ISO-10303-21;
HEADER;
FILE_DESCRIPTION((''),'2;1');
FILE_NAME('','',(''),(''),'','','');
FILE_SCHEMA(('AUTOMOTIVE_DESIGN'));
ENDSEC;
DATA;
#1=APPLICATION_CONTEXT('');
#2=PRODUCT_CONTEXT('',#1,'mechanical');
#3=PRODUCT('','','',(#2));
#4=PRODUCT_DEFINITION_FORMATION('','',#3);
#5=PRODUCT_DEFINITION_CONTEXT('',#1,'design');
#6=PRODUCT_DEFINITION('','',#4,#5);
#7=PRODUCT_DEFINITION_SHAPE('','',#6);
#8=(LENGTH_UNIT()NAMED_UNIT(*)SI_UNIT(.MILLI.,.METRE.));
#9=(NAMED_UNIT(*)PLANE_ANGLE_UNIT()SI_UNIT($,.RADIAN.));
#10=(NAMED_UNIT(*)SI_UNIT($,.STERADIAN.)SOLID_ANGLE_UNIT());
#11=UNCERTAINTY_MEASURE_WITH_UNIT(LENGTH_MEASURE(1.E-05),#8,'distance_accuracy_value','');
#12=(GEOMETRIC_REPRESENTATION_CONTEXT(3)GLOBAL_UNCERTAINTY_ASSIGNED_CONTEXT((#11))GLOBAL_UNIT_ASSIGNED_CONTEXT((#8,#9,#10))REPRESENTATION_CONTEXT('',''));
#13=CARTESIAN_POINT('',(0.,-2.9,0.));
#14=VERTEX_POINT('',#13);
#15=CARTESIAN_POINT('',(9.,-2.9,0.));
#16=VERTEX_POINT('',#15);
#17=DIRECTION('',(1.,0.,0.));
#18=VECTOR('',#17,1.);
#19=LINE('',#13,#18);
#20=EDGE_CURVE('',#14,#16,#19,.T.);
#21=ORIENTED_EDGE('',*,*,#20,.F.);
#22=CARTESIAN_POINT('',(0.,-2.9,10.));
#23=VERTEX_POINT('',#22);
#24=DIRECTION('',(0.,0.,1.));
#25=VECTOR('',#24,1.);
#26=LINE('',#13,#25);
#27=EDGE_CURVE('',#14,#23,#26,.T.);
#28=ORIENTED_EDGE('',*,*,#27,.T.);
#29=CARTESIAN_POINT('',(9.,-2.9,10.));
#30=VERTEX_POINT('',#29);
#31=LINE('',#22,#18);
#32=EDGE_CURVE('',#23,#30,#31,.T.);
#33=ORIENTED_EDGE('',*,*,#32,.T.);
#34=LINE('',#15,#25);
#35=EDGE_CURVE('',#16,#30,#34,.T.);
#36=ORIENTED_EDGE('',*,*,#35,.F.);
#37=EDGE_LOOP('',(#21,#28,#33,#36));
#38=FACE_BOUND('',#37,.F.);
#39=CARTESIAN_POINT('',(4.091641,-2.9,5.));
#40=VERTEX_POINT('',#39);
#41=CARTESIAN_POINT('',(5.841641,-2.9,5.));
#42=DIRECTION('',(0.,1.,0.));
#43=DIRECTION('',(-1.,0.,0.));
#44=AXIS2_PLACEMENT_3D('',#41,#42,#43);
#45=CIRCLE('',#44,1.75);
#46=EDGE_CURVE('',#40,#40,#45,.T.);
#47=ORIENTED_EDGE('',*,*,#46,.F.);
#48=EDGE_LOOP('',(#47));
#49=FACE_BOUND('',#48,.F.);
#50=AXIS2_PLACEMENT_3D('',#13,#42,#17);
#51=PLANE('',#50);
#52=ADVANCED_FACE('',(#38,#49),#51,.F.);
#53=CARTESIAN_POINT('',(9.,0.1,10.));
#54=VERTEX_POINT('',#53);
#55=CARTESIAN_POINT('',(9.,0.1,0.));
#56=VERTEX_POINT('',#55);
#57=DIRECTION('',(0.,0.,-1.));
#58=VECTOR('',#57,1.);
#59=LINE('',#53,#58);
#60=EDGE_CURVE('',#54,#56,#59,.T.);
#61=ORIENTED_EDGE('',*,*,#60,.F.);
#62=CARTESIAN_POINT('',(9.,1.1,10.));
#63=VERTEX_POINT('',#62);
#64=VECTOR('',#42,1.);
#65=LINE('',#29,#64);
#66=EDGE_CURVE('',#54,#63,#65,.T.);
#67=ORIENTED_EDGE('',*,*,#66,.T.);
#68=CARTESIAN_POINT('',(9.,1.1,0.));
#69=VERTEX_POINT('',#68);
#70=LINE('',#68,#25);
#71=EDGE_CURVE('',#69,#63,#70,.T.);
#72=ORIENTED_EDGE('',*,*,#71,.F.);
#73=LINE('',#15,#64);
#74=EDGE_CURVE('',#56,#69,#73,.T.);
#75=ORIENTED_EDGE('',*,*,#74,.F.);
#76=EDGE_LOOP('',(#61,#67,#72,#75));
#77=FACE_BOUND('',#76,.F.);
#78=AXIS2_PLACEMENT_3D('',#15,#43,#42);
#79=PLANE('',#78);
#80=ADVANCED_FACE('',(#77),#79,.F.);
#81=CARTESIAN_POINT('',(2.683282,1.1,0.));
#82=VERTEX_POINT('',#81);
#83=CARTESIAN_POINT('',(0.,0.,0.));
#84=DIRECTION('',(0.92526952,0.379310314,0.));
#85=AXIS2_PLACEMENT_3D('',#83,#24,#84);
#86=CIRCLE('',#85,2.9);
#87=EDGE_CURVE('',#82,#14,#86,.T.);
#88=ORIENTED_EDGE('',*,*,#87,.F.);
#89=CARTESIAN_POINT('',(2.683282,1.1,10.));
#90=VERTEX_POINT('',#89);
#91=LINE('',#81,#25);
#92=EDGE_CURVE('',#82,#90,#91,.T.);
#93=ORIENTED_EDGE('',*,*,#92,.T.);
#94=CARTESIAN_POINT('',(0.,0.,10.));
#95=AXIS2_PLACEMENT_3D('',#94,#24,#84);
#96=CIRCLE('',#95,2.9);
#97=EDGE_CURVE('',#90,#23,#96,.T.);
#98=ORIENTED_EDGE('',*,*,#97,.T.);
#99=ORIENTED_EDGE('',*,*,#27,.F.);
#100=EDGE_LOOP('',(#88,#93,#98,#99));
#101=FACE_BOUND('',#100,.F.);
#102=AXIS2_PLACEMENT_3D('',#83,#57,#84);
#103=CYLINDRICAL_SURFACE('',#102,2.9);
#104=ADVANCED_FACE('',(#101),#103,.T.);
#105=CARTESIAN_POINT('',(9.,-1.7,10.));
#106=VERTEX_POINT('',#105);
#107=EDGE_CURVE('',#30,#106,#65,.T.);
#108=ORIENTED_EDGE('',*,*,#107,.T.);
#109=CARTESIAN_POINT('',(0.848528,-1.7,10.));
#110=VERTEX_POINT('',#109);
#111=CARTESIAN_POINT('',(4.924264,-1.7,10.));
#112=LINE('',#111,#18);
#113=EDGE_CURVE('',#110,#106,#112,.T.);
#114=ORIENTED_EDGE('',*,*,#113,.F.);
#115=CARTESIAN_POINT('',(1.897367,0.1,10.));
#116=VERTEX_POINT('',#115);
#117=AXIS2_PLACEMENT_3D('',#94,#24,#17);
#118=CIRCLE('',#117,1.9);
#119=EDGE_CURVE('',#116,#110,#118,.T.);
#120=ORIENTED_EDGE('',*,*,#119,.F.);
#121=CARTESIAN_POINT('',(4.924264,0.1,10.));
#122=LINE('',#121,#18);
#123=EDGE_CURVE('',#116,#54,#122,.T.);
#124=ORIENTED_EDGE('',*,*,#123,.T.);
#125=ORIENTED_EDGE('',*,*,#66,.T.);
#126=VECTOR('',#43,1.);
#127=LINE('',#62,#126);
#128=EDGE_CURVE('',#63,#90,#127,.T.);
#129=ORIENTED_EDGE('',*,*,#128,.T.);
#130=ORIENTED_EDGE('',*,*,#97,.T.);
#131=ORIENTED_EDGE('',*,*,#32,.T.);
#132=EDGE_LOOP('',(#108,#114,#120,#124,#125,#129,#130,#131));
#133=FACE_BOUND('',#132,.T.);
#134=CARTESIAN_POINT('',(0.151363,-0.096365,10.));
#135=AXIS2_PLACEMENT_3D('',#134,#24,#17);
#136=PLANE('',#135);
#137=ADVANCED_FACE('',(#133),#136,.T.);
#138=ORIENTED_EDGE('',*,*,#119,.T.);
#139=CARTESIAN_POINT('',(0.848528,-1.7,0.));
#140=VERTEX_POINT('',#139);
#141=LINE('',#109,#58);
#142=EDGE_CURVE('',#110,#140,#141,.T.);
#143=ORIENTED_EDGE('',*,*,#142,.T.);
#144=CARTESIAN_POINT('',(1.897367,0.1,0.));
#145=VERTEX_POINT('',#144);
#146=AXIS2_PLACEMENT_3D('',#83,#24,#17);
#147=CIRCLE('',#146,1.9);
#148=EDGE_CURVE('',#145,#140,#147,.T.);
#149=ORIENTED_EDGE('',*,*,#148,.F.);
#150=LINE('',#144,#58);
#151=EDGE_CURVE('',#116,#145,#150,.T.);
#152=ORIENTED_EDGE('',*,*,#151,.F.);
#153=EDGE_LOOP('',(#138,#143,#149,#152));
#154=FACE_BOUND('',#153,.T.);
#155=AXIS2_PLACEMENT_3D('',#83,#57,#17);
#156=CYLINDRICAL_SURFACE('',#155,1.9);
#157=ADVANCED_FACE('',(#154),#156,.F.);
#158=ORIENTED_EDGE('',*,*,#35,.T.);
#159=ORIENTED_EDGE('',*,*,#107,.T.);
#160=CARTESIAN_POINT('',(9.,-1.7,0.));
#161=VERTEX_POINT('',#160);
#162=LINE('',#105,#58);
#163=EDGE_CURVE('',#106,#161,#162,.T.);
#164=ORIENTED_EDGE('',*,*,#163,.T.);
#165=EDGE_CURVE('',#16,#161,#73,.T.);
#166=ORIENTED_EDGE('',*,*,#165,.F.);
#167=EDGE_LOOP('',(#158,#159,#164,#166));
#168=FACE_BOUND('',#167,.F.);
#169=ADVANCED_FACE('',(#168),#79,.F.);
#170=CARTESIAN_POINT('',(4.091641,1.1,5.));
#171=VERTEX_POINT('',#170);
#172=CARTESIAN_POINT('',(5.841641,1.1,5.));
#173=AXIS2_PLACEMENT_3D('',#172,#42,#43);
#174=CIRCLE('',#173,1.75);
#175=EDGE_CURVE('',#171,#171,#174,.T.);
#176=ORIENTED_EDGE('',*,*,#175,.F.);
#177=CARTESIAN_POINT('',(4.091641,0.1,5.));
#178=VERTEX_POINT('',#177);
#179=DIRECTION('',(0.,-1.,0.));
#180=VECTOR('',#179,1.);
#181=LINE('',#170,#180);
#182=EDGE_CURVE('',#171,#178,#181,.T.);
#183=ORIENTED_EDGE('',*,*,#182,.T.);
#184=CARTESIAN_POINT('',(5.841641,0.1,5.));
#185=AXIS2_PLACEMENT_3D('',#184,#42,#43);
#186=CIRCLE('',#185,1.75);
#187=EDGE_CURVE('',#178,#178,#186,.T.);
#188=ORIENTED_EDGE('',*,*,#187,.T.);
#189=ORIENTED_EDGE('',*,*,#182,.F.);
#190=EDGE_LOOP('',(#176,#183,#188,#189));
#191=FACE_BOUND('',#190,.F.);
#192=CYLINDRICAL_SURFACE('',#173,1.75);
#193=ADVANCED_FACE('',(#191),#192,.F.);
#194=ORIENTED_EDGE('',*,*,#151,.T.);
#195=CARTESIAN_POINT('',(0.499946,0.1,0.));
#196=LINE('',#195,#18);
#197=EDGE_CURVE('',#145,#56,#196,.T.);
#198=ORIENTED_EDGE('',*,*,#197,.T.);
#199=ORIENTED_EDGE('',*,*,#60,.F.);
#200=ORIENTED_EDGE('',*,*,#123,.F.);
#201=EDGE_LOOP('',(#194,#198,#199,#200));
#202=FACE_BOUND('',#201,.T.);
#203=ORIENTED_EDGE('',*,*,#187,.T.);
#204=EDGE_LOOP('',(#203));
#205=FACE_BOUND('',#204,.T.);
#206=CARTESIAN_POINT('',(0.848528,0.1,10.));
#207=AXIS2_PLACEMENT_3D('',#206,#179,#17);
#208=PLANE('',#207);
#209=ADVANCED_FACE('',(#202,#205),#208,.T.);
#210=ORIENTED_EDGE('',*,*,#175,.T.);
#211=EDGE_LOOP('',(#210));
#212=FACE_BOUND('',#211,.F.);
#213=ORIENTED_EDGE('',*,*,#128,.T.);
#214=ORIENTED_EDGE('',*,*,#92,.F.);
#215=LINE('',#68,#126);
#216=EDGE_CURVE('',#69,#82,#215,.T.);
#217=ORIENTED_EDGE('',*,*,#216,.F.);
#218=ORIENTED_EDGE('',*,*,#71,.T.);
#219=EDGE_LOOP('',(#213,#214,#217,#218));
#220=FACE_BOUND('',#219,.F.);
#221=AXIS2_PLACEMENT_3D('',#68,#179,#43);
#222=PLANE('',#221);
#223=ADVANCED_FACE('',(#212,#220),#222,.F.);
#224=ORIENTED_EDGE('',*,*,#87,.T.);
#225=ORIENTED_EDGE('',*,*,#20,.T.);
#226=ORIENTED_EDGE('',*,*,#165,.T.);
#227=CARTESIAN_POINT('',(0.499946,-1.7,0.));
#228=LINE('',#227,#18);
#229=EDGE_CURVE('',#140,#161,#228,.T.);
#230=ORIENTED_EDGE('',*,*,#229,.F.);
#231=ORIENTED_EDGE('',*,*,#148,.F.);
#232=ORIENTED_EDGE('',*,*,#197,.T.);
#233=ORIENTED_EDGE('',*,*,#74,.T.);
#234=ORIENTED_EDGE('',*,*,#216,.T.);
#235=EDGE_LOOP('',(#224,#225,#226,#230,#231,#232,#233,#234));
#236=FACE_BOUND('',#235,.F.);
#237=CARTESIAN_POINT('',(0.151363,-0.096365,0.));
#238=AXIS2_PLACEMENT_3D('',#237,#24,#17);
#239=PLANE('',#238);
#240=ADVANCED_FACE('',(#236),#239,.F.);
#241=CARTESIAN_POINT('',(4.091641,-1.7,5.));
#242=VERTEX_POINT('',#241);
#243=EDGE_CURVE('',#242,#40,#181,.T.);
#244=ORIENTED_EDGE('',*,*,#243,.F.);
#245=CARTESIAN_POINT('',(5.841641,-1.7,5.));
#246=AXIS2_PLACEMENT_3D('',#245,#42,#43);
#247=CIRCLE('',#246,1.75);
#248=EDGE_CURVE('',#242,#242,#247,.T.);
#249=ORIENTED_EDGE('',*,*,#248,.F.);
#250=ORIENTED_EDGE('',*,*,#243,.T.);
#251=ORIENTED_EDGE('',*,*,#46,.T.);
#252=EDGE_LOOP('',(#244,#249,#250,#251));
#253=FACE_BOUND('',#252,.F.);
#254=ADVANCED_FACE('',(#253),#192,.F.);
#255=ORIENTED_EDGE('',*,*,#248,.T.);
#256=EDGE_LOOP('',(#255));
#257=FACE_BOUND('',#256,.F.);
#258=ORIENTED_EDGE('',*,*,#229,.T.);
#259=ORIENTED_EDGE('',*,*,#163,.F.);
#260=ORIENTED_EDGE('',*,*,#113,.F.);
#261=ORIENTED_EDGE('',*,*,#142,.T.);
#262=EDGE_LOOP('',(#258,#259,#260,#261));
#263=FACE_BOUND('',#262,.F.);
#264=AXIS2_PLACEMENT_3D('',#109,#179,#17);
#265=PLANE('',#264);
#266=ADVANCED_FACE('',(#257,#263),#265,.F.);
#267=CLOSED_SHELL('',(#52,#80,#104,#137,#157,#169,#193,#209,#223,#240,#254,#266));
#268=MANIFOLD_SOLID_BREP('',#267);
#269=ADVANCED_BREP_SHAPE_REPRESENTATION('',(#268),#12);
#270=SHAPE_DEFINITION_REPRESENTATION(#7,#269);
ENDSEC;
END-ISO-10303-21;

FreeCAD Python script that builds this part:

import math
import FreeCAD as App
import Part
import Sketcher

V = App.Vector
Q = App.Units.Quantity

doc = App.newDocument("Part")
params = doc.addObject("Spreadsheet::Sheet", "Params")
for row, (alias, value) in enumerate([
    ("sketch1_diameter", "3.8 mm"),
    ("sketch1_radius", "2.9 mm"),
    ("sketch1_width", "9 mm"),
    ("sketch1_height", "4 mm"),
    ("pad1_length", "10 mm"),
    ("sketch2_height", "1.8 mm"),
    ("pocket1_length", "25 mm"),
    ("sketch3_diameter", "3.5 mm"),
    ("pocket2_length", "25 mm"),
], start=1):
    params.set(f"A{row}", alias)
    params.set(f"B{row}", "=" + value)
    params.setAlias(f"B{row}", alias)

body = doc.addObject("PartDesign::Body", "Body")

sketch1 = body.newObject("Sketcher::SketchObject", "Sketch")
sketch1.AttachmentSupport = (doc.getObject("XY_Plane"), [""])
sketch1.MapMode = "FlatFace"
sketch1.addGeometry([
    Part.ArcOfCircle(Part.Circle(V(0, 0, 0), V(0, 0, 1), 2.9), math.radians(22), math.radians(270)),
    Part.LineSegment(V(0, -2.9, 0), V(9, -2.9, 0)),
    Part.LineSegment(V(9, -2.9, 0), V(9, 1.1, 0)),
    Part.LineSegment(V(9, 1.1, 0), V(2.7, 1.1, 0)),
    Part.Circle(V(0, 0, 0), V(0, 0, 1), 1.9),
], False)
sketch1.addConstraint([
    Sketcher.Constraint("Tangent", 0, 2, 1, 1),
    Sketcher.Constraint("Coincident", 1, 2, 2, 1),
    Sketcher.Constraint("Coincident", 2, 2, 3, 1),
    Sketcher.Constraint("Coincident", 3, 2, 0, 1),
    Sketcher.Constraint("Horizontal", 1),
    Sketcher.Constraint("Vertical", 2),
    Sketcher.Constraint("Horizontal", 3),
    Sketcher.Constraint("Coincident", 0, 3, -1, 1),
    Sketcher.Constraint("Coincident", 4, 3, -1, 1),
    Sketcher.Constraint("Diameter", 4, Q("3.8 mm")),
    Sketcher.Constraint("Radius", 0, Q("2.9 mm")),
    Sketcher.Constraint("DistanceX", 1, 1, 1, 2, Q("9 mm")),
    Sketcher.Constraint("DistanceY", 2, 1, 2, 2, Q("4 mm")),
])
sketch1.setExpression("Constraints[9]", "Params.sketch1_diameter")
sketch1.setExpression("Constraints[10]", "Params.sketch1_radius")
sketch1.setExpression("Constraints[11]", "Params.sketch1_width")
sketch1.setExpression("Constraints[12]", "Params.sketch1_height")
pad1 = body.newObject("PartDesign::Pad", "Pad")
pad1.Profile = sketch1
pad1.setExpression("Length", "Params.pad1_length")

sketch2 = body.newObject("Sketcher::SketchObject", "Sketch001")
sketch2.AttachmentSupport = (doc.getObject("XY_Plane"), [""])
sketch2.MapMode = "FlatFace"
sketch2.AttachmentOffset = App.Placement(V(0, 0, 10), App.Rotation())
sketch2.addGeometry([
    Part.LineSegment(V(0.8, 0.1, 0), V(0.8, -1.7, 0)),
    Part.LineSegment(V(0.8, -1.7, 0), V(9, -1.7, 0)),
    Part.LineSegment(V(9, -1.7, 0), V(9, 0.1, 0)),
    Part.LineSegment(V(9, 0.1, 0), V(0.8, 0.1, 0)),
], False)
sketch2.addConstraint([
    Sketcher.Constraint("Coincident", 0, 2, 1, 1),
    Sketcher.Constraint("Coincident", 1, 2, 2, 1),
    Sketcher.Constraint("Coincident", 2, 2, 3, 1),
    Sketcher.Constraint("Coincident", 3, 2, 0, 1),
    Sketcher.Constraint("Vertical", 0),
    Sketcher.Constraint("Horizontal", 1),
    Sketcher.Constraint("Vertical", 2),
    Sketcher.Constraint("Horizontal", 3),
    Sketcher.Constraint("DistanceY", 0, 2, 0, 1, Q("1.8 mm")),
    Sketcher.Constraint("DistanceX", -1, 1, 1, 2, Q("9 mm")),
    Sketcher.Constraint("DistanceY", 0, 2, -1, 1, Q("1.7 mm")),
    Sketcher.Constraint("DistanceX", 1, 1, 1, 2, Q("8.151472 mm")),
])
sketch2.setExpression("Constraints[8]", "Params.sketch2_height")
pocket1 = body.newObject("PartDesign::Pocket", "Pocket")
pocket1.Profile = sketch2
pocket1.setExpression("Length", "Params.pocket1_length")

sketch3 = body.newObject("Sketcher::SketchObject", "Sketch002")
sketch3.AttachmentSupport = (doc.getObject("XZ_Plane"), [""])
sketch3.MapMode = "FlatFace"
sketch3.AttachmentOffset = App.Placement(V(0, 0, -1.1), App.Rotation())
sketch3.addGeometry(Part.Circle(V(5.8, 5, 0), V(0, 0, 1), 1.8), False)
sketch3.addConstraint([
    Sketcher.Constraint("Diameter", 0, Q("3.5 mm")),
    Sketcher.Constraint("DistanceY", -1, 1, 0, 3, Q("5 mm")),
    Sketcher.Constraint("DistanceX", -1, 1, 0, 3, Q("5.841641 mm")),
])
sketch3.setExpression("Constraints[0]", "Params.sketch3_diameter")
pocket2 = body.newObject("PartDesign::Pocket", "Pocket001")
pocket2.Profile = sketch3
pocket2.setExpression("Length", "Params.pocket2_length")
pocket2.Reversed = True

doc.recompute()
